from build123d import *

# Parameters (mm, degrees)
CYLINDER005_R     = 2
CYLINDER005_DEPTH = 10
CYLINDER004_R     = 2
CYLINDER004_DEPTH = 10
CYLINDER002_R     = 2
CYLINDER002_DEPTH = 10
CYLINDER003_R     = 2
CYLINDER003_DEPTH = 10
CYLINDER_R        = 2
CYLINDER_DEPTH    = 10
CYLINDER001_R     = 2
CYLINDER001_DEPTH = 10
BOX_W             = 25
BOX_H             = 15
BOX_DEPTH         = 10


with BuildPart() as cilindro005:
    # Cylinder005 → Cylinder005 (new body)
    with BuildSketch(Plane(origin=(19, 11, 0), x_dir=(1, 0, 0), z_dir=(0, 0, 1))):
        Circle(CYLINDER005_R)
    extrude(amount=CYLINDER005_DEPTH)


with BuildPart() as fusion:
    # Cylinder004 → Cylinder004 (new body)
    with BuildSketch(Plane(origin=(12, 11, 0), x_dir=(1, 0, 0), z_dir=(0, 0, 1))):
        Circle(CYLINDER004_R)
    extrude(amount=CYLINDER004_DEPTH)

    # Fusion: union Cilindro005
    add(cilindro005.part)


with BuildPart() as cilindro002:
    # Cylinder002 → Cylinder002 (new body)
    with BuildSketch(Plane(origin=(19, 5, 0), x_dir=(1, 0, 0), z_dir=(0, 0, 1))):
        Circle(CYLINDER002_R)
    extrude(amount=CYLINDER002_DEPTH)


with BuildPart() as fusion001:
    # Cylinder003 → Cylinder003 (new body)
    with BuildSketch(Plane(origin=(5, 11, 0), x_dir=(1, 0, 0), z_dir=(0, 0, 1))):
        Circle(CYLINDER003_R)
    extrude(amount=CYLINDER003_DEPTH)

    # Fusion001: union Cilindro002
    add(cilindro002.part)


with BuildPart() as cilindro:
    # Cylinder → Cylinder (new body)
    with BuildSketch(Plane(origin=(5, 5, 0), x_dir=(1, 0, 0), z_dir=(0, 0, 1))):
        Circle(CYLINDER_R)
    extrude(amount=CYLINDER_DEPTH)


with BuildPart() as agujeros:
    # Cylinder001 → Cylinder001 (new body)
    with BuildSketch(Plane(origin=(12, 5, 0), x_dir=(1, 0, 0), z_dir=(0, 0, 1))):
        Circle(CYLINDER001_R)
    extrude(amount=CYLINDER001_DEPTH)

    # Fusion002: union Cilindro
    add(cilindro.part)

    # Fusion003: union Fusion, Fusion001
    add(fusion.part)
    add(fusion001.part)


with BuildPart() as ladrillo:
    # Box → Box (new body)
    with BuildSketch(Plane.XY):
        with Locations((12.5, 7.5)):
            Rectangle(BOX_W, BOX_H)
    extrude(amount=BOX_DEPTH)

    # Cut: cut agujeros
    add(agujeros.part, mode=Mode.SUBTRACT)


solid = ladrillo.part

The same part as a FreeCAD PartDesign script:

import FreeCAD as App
import Part
import Sketcher

doc = App.newDocument("Part")
body = doc.addObject("PartDesign::Body", "Body")

sketch1 = doc.addObject("Sketcher::SketchObject", "Sketch")
body.addObject(sketch1)
sketch1.AttachmentSupport = (doc.XY_Plane, [""])
sketch1.MapMode = "FlatFace"
sketch1.addGeometry(Part.Circle(App.Vector(19, 11, 0), App.Vector(0, 0, 1), 2), False)
sketch1.addConstraint([
    Sketcher.Constraint("Diameter", 0, 4.0),
    Sketcher.Constraint("DistanceX", -1, 1, 0, 3, 19.0),
    Sketcher.Constraint("DistanceY", -1, 1, 0, 3, 11.0),
])
pad1 = doc.addObject("PartDesign::Pad", "Pad")
body.addObject(pad1)
pad1.Profile = sketch1
pad1.Length = 10
body2 = doc.addObject("PartDesign::Body", "Body001")
body2.AllowCompound = True

sketch2 = doc.addObject("Sketcher::SketchObject", "Sketch001")
body2.addObject(sketch2)
sketch2.AttachmentSupport = (doc.getObject("XY_Plane001"), [""])
sketch2.MapMode = "FlatFace"
sketch2.addGeometry(Part.Circle(App.Vector(12, 11, 0), App.Vector(0, 0, 1), 2), False)
sketch2.addConstraint([
    Sketcher.Constraint("Diameter", 0, 4.0),
    Sketcher.Constraint("DistanceX", -1, 1, 0, 3, 12.0),
    Sketcher.Constraint("DistanceY", -1, 1, 0, 3, 11.0),
])
pad2 = doc.addObject("PartDesign::Pad", "Pad001")
body2.addObject(pad2)
pad2.Profile = sketch2
pad2.Length = 10
doc.recompute()

boolean = doc.addObject("PartDesign::Boolean", "Boolean")
body2.addObject(boolean)
boolean.Type = "Fuse"
boolean.addObjects([body])
body3 = doc.addObject("PartDesign::Body", "Body002")

sketch3 = doc.addObject("Sketcher::SketchObject", "Sketch002")
body3.addObject(sketch3)
sketch3.AttachmentSupport = (doc.getObject("XY_Plane002"), [""])
sketch3.MapMode = "FlatFace"
sketch3.addGeometry(Part.Circle(App.Vector(19, 5, 0), App.Vector(0, 0, 1), 2), False)
sketch3.addConstraint([
    Sketcher.Constraint("Diameter", 0, 4.0),
    Sketcher.Constraint("DistanceX", -1, 1, 0, 3, 19.0),
    Sketcher.Constraint("DistanceY", -1, 1, 0, 3, 5.0),
])
pad3 = doc.addObject("PartDesign::Pad", "Pad002")
body3.addObject(pad3)
pad3.Profile = sketch3
pad3.Length = 10
body4 = doc.addObject("PartDesign::Body", "Body003")
body4.AllowCompound = True

sketch4 = doc.addObject("Sketcher::SketchObject", "Sketch003")
body4.addObject(sketch4)
sketch4.AttachmentSupport = (doc.getObject("XY_Plane003"), [""])
sketch4.MapMode = "FlatFace"
sketch4.addGeometry(Part.Circle(App.Vector(5, 11, 0), App.Vector(0, 0, 1), 2), False)
sketch4.addConstraint([
    Sketcher.Constraint("Diameter", 0, 4.0),
    Sketcher.Constraint("DistanceX", -1, 1, 0, 3, 5.0),
    Sketcher.Constraint("DistanceY", -1, 1, 0, 3, 11.0),
])
pad4 = doc.addObject("PartDesign::Pad", "Pad003")
body4.addObject(pad4)
pad4.Profile = sketch4
pad4.Length = 10
doc.recompute()

boolean2 = doc.addObject("PartDesign::Boolean", "Boolean001")
body4.addObject(boolean2)
boolean2.Type = "Fuse"
boolean2.addObjects([body3])
body5 = doc.addObject("PartDesign::Body", "Body004")

sketch5 = doc.addObject("Sketcher::SketchObject", "Sketch004")
body5.addObject(sketch5)
sketch5.AttachmentSupport = (doc.getObject("XY_Plane004"), [""])
sketch5.MapMode = "FlatFace"
sketch5.addGeometry(Part.Circle(App.Vector(5, 5, 0), App.Vector(0, 0, 1), 2), False)
sketch5.addConstraint([
    Sketcher.Constraint("Diameter", 0, 4.0),
    Sketcher.Constraint("DistanceX", -1, 1, 0, 3, 5.0),
    Sketcher.Constraint("DistanceY", -1, 1, 0, 3, 5.0),
])
pad5 = doc.addObject("PartDesign::Pad", "Pad004")
body5.addObject(pad5)
pad5.Profile = sketch5
pad5.Length = 10
body6 = doc.addObject("PartDesign::Body", "Body005")
body6.AllowCompound = True

sketch6 = doc.addObject("Sketcher::SketchObject", "Sketch005")
body6.addObject(sketch6)
sketch6.AttachmentSupport = (doc.getObject("XY_Plane005"), [""])
sketch6.MapMode = "FlatFace"
sketch6.addGeometry(Part.Circle(App.Vector(12, 5, 0), App.Vector(0, 0, 1), 2), False)
sketch6.addConstraint([
    Sketcher.Constraint("Diameter", 0, 4.0),
    Sketcher.Constraint("DistanceX", -1, 1, 0, 3, 12.0),
    Sketcher.Constraint("DistanceY", -1, 1, 0, 3, 5.0),
])
pad6 = doc.addObject("PartDesign::Pad", "Pad005")
body6.addObject(pad6)
pad6.Profile = sketch6
pad6.Length = 10
doc.recompute()

boolean3 = doc.addObject("PartDesign::Boolean", "Boolean002")
body6.addObject(boolean3)
boolean3.Type = "Fuse"
boolean3.addObjects([body5])
doc.recompute()

boolean4 = doc.addObject("PartDesign::Boolean", "Boolean003")
body6.addObject(boolean4)
boolean4.Type = "Fuse"
boolean4.addObjects([body2])
doc.recompute()

boolean5 = doc.addObject("PartDesign::Boolean", "Boolean004")
body6.addObject(boolean5)
boolean5.Type = "Fuse"
boolean5.addObjects([body4])
body7 = doc.addObject("PartDesign::Body", "Body006")

sketch7 = doc.addObject("Sketcher::SketchObject", "Sketch006")
body7.addObject(sketch7)
sketch7.AttachmentSupport = (doc.getObject("XY_Plane006"), [""])
sketch7.MapMode = "FlatFace"
sketch7.addGeometry([
    Part.LineSegment(App.Vector(0, 15, 0), App.Vector(0, 0, 0)),
    Part.LineSegment(App.Vector(0, 0, 0), App.Vector(25, 0, 0)),
    Part.LineSegment(App.Vector(25, 0, 0), App.Vector(25, 15, 0)),
    Part.LineSegment(App.Vector(25, 15, 0), App.Vector(0, 15, 0)),
], False)
sketch7.addConstraint([
    Sketcher.Constraint("Coincident", 0, 2, 1, 1),
    Sketcher.Constraint("Coincident", 1, 2, 2, 1),
    Sketcher.Constraint("Coincident", 2, 2, 3, 1),
    Sketcher.Constraint("Coincident", 3, 2, 0, 1),
    Sketcher.Constraint("Vertical", 0),
    Sketcher.Constraint("Horizontal", 1),
    Sketcher.Constraint("Vertical", 2),
    Sketcher.Constraint("Horizontal", 3),
    Sketcher.Constraint("Coincident", 0, 2, -1, 1),
    Sketcher.Constraint("DistanceX", 1, 1, 1, 2, 25.0),
    Sketcher.Constraint("DistanceY", 0, 2, 0, 1, 15.0),
])
pad7 = doc.addObject("PartDesign::Pad", "Pad006")
body7.addObject(pad7)
pad7.Profile = sketch7
pad7.Length = 10
doc.recompute()

boolean6 = doc.addObject("PartDesign::Boolean", "Boolean005")
body7.addObject(boolean6)
boolean6.Type = "Cut"
boolean6.addObjects([body6])

doc.recompute()
